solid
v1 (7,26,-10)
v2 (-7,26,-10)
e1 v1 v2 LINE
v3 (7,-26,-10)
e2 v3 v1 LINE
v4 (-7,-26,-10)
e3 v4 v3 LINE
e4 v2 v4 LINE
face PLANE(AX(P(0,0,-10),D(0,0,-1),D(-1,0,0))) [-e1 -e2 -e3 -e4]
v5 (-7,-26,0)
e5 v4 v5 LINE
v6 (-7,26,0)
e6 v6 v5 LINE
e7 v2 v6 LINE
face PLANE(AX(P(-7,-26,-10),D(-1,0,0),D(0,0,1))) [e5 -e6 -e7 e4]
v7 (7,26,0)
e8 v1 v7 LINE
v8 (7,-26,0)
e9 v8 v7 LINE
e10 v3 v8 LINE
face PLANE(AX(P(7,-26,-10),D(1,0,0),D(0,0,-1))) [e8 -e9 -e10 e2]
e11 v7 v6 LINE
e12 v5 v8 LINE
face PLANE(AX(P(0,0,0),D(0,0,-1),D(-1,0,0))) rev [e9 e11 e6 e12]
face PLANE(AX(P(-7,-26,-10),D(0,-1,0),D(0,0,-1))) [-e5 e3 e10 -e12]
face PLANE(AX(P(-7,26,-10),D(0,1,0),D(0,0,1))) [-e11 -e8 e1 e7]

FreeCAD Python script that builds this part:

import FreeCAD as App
import Part
import Sketcher


def add_polygon(sketch, points):
    """Adds a closed chain of lines whose ends are joined by coincident constraints."""
    first, n = sketch.GeometryCount, len(points)
    for a, b in zip(points, points[1:] + points[:1]):
        sketch.addGeometry(Part.LineSegment(App.Vector(*a, 0), App.Vector(*b, 0)), False)
    for i in range(n):
        sketch.addConstraint(Sketcher.Constraint("Coincident", first + i, 2, first + (i + 1) % n, 1))

doc = App.newDocument("Part")
body = doc.addObject("PartDesign::Body", "Body")

# Sketch on XY plane
sketch1 = body.newObject("Sketcher::SketchObject", "Sketch")
sketch1.AttachmentSupport = (doc.getObject("XY_Plane"), [""])
sketch1.MapMode = "FlatFace"
add_polygon(sketch1, [(-7, 26), (-7, -26), (7, -26), (7, 26)])  # lines 0-3
sketch1.addConstraint([
    Sketcher.Constraint("Vertical", 0),
    Sketcher.Constraint("Horizontal", 1),
    Sketcher.Constraint("Vertical", 2),
    Sketcher.Constraint("Horizontal", 3),
    Sketcher.Constraint("Symmetric", 0, 2, 2, 2, -1, 1),
    Sketcher.Constraint("DistanceX", 1, 1, 1, 2, 14.0),
    Sketcher.Constraint("DistanceY", 0, 2, 0, 1, 52.0),
])
pad1 = body.newObject("PartDesign::Pad", "Pad")
pad1.Profile = sketch1
pad1.Length = 10
pad1.Reversed = True

doc.recompute()
